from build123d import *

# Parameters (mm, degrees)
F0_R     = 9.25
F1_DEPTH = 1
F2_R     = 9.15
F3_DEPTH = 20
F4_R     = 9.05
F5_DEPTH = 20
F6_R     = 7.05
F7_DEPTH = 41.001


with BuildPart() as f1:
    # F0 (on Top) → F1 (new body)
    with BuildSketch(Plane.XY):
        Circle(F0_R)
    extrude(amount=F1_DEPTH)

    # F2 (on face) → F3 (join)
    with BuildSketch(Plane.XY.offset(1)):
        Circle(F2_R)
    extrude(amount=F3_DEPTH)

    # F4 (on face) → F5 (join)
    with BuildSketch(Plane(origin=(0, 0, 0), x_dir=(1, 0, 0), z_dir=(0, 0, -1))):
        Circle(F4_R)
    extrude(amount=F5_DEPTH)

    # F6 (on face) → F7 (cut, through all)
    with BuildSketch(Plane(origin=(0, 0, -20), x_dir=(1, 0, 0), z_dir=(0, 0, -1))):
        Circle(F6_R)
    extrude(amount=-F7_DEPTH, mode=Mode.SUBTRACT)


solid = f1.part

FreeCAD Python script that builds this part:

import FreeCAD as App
import Part
import Sketcher

V = App.Vector

doc = App.newDocument("Part")
body = doc.addObject("PartDesign::Body", "Body")

# Sketch on XY plane
sketch1 = doc.addObject("Sketcher::SketchObject", "Sketch")
body.addObject(sketch1)
sketch1.AttachmentSupport = (doc.XY_Plane, [""])
sketch1.MapMode = "FlatFace"
sketch1.addGeometry(Part.Circle(V(0, 0, 0), V(0, 0, 1), 9), False)
sketch1.addConstraint([
    Sketcher.Constraint("Coincident", 0, 3, -1, 1),
    Sketcher.Constraint("Diameter", 0, 18.5),
])
pad1 = doc.addObject("PartDesign::Pad", "Pad")
body.addObject(pad1)
pad1.Profile = sketch1
pad1.Length = 1

# Sketch on XY plane
sketch2 = doc.addObject("Sketcher::SketchObject", "Sketch001")
body.addObject(sketch2)
sketch2.AttachmentSupport = (doc.XY_Plane, [""])
sketch2.MapMode = "FlatFace"
sketch2.AttachmentOffset = App.Placement(V(0, 0, 1), App.Rotation())
sketch2.addGeometry(Part.Circle(V(0, 0, 0), V(0, 0, 1), 9), False)
sketch2.addConstraint([
    Sketcher.Constraint("Coincident", 0, 3, -1, 1),
    Sketcher.Constraint("Diameter", 0, 18.3),
])
pad2 = doc.addObject("PartDesign::Pad", "Pad001")
body.addObject(pad2)
pad2.Profile = sketch2
pad2.Length = 20

# Sketch on XY plane
sketch3 = doc.addObject("Sketcher::SketchObject", "Sketch002")
body.addObject(sketch3)
sketch3.AttachmentSupport = (doc.XY_Plane, [""])
sketch3.MapMode = "FlatFace"
sketch3.addGeometry(Part.Circle(V(0, 0, 0), V(0, 0, 1), 9), False)
sketch3.addConstraint([
    Sketcher.Constraint("Coincident", 0, 3, -1, 1),
    Sketcher.Constraint("Diameter", 0, 18.1),
])
pad3 = doc.addObject("PartDesign::Pad", "Pad002")
body.addObject(pad3)
pad3.Profile = sketch3
pad3.Length = 20
pad3.Reversed = True

# Sketch on XY plane
sketch4 = doc.addObject("Sketcher::SketchObject", "Sketch003")
body.addObject(sketch4)
sketch4.AttachmentSupport = (doc.XY_Plane, [""])
sketch4.MapMode = "FlatFace"
sketch4.AttachmentOffset = App.Placement(V(0, 0, -20), App.Rotation())
sketch4.addGeometry(Part.Circle(V(0, 0, 0), V(0, 0, 1), 7), False)
sketch4.addConstraint([
    Sketcher.Constraint("Coincident", 0, 3, -1, 1),
    Sketcher.Constraint("Diameter", 0, 14.1),
])
pocket1 = doc.addObject("PartDesign::Pocket", "Pocket")
body.addObject(pocket1)
pocket1.Profile = sketch4
pocket1.Type = "ThroughAll"
pocket1.Reversed = True

doc.recompute()
